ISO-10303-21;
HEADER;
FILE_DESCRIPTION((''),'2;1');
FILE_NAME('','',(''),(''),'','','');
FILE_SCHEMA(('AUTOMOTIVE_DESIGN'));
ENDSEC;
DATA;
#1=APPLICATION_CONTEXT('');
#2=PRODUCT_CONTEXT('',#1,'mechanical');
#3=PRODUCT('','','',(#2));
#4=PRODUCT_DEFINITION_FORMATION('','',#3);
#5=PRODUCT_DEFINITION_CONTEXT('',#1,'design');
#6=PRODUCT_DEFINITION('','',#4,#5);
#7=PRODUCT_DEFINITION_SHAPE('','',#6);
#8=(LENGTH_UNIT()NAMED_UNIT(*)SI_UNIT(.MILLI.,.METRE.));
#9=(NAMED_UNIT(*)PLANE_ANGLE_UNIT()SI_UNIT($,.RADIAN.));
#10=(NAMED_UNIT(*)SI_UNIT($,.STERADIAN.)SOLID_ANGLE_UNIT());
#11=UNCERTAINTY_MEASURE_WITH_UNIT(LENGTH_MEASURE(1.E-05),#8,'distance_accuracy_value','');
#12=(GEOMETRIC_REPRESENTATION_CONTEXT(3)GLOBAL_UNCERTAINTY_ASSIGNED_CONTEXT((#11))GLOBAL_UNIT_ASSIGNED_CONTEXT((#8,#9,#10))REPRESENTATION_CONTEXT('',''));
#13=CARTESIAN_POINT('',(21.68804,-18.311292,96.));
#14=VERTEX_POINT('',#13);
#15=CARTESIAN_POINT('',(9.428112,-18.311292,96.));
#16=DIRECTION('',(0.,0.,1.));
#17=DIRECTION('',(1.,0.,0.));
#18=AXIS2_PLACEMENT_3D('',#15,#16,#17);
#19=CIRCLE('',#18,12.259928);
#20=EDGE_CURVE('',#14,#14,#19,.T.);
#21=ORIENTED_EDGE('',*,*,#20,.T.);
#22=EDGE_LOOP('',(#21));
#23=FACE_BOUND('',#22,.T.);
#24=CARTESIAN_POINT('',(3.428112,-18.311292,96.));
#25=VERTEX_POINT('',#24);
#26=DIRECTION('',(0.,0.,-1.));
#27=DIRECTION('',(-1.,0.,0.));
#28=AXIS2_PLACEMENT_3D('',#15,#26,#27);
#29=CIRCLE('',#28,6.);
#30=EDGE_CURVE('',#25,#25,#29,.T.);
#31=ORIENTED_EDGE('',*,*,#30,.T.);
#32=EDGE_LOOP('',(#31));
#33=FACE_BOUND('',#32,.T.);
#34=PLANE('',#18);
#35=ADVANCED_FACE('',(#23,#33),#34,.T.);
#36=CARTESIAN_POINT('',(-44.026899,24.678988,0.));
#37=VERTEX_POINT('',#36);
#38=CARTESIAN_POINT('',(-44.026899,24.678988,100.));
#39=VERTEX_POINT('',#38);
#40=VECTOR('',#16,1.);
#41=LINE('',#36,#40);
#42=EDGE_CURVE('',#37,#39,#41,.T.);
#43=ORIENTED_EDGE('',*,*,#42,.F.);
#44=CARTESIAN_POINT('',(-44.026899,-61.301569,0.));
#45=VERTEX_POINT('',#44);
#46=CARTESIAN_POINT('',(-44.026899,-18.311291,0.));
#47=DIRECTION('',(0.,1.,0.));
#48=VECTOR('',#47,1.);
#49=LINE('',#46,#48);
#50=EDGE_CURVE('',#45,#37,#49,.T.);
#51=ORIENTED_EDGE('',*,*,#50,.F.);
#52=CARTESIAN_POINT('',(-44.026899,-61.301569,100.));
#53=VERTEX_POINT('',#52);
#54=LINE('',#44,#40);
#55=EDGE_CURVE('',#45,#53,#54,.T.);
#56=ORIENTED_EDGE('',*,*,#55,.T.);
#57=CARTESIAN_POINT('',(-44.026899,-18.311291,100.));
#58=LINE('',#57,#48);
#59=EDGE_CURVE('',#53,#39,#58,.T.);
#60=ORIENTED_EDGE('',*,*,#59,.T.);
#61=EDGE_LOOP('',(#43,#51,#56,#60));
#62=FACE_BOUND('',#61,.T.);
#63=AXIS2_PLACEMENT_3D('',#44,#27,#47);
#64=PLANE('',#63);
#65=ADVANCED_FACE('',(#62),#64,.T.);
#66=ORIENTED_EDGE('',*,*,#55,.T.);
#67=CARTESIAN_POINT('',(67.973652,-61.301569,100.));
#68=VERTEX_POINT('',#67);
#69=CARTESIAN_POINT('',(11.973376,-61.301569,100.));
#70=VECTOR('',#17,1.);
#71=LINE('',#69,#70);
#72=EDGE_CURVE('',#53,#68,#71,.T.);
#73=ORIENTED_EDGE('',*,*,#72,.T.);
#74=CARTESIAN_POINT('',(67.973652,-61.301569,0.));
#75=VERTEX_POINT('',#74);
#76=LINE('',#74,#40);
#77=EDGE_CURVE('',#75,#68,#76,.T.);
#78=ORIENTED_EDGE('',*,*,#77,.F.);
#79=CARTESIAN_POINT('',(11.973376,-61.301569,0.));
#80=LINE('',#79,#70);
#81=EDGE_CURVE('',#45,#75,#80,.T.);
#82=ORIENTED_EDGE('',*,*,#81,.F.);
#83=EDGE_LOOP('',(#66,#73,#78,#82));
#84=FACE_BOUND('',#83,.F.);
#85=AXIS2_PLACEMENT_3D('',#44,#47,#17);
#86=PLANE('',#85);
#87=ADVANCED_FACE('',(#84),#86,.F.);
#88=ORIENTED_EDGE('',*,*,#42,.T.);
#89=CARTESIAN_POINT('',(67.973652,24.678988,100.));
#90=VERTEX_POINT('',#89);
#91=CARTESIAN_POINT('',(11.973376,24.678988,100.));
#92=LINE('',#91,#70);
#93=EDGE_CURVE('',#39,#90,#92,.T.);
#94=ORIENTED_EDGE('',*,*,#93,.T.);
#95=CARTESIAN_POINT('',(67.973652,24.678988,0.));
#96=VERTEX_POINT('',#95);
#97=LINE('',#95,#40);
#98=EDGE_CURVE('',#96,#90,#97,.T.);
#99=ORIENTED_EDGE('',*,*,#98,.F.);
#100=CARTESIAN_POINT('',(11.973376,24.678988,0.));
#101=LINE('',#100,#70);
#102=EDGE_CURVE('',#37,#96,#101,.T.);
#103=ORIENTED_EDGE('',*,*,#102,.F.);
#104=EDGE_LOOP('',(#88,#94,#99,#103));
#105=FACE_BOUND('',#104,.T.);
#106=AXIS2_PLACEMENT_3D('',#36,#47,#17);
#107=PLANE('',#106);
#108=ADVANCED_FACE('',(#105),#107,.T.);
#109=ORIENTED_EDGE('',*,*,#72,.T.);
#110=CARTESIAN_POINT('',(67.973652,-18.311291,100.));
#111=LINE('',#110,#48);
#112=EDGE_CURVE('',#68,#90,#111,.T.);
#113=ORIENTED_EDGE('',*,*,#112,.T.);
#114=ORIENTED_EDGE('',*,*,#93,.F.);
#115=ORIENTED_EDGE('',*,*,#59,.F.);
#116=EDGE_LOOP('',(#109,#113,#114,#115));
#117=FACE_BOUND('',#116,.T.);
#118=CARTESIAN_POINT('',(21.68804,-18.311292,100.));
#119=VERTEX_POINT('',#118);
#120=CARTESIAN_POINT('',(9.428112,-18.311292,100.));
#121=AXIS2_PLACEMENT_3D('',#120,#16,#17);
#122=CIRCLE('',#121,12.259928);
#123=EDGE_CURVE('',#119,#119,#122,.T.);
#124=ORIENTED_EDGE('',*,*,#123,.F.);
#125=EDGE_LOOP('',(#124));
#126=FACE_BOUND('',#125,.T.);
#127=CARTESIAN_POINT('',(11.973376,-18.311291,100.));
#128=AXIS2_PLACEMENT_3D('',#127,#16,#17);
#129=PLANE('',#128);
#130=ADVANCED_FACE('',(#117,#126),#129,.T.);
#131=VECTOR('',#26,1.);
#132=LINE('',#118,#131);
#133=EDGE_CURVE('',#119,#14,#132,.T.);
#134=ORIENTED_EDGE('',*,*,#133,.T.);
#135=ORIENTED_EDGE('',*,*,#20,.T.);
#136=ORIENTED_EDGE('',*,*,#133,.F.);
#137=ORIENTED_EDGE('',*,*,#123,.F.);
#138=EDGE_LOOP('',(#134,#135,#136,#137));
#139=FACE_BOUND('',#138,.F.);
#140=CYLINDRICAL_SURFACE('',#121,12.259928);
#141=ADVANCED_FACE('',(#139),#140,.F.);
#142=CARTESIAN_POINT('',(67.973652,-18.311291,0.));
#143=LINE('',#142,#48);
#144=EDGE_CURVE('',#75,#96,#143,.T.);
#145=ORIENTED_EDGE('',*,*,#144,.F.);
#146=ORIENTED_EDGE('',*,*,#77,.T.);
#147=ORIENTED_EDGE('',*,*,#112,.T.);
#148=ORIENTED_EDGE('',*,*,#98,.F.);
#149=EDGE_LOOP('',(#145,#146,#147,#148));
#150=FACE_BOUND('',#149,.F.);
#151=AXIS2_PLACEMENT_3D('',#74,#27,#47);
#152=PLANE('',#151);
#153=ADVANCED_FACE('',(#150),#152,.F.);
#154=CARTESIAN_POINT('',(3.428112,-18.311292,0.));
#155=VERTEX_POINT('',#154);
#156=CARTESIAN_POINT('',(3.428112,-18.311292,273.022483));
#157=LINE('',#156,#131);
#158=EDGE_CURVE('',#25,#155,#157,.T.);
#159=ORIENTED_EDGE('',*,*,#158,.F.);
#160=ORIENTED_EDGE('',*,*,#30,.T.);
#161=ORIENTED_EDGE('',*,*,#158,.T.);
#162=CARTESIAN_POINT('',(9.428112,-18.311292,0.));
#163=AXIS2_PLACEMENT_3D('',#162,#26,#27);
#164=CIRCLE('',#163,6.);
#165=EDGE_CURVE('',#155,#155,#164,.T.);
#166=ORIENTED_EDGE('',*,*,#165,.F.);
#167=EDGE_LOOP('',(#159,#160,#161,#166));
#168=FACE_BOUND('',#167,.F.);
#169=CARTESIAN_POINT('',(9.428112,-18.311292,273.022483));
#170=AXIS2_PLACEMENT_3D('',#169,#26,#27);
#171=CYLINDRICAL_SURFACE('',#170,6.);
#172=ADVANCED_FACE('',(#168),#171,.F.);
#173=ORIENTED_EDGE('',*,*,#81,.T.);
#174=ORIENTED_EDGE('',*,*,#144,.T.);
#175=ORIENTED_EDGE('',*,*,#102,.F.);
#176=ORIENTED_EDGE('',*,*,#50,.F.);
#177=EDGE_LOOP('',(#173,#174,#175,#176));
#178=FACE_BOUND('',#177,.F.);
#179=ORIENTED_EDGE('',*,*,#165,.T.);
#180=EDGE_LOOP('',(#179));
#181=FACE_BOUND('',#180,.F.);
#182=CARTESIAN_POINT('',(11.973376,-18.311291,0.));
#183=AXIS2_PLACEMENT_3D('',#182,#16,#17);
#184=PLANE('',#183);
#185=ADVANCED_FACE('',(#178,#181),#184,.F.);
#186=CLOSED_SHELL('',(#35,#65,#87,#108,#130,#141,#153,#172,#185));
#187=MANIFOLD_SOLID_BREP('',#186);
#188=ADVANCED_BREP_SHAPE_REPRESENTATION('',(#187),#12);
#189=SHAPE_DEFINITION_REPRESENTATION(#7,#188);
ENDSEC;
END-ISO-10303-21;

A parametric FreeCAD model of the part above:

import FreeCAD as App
import Part
import Sketcher

V = App.Vector

doc = App.newDocument("Part")
params = doc.addObject("Spreadsheet::Sheet", "Params")
for row, (alias, value) in enumerate([
    ("pad1_length", "100 mm"),
    ("sketch2_diameter", "12 mm"),
    ("hole_diameter", "12 mm"),
    ("pocket1_length", "4 mm"),
], start=1):
    params.set(f"A{row}", alias)
    params.set(f"B{row}", "=" + value)
    params.setAlias(f"B{row}", alias)

body = doc.addObject("PartDesign::Body", "Body")

# Sketch on XY plane
sketch1 = body.newObject("Sketcher::SketchObject", "Sketch")
sketch1.AttachmentSupport = (doc.getObject("XY_Plane"), [""])
sketch1.MapMode = "FlatFace"
sketch1.addGeometry([
    Part.LineSegment(V(-44.026899, 24.678988, 0), V(-44.026899, -61.301569, 0)),
    Part.LineSegment(V(-44.026899, -61.301569, 0), V(67.973652, -61.301569, 0)),
    Part.LineSegment(V(67.973652, -61.301569, 0), V(67.973652, 24.678988, 0)),
    Part.LineSegment(V(67.973652, 24.678988, 0), V(-44.026899, 24.678988, 0)),
], False)
sketch1.addConstraint([
    Sketcher.Constraint("Coincident", 0, 2, 1, 1),
    Sketcher.Constraint("Coincident", 1, 2, 2, 1),
    Sketcher.Constraint("Coincident", 2, 2, 3, 1),
    Sketcher.Constraint("Coincident", 3, 2, 0, 1),
    Sketcher.Constraint("Vertical", 0),
    Sketcher.Constraint("Horizontal", 1),
    Sketcher.Constraint("Vertical", 2),
    Sketcher.Constraint("Horizontal", 3),
    Sketcher.Constraint("DistanceX", 1, 1, 1, 2, 112.000551),
    Sketcher.Constraint("DistanceX", 0, 2, -1, 1, 44.026899),
    Sketcher.Constraint("DistanceY", 0, 2, 0, 1, 85.980557),
    Sketcher.Constraint("DistanceY", 0, 2, -1, 1, 61.301569),
])
pad1 = body.newObject("PartDesign::Pad", "Pad")
pad1.Profile = sketch1
pad1.setExpression("Length", "Params.pad1_length")

# Sketch on XY plane
sketch2 = body.newObject("Sketcher::SketchObject", "Sketch001")
sketch2.AttachmentSupport = (doc.getObject("XY_Plane"), [""])
sketch2.MapMode = "FlatFace"
sketch2.AttachmentOffset = App.Placement(V(0, 0, 100), App.Rotation())
sketch2.addGeometry(Part.Circle(V(9.428112, -18.311292, 0), V(0, 0, 1), 6), False)
sketch2.addConstraint([
    Sketcher.Constraint("Diameter", 0, 12.0),
    Sketcher.Constraint("DistanceX", -1, 1, 0, 3, 9.428112),
    Sketcher.Constraint("DistanceY", 0, 3, -1, 1, 18.311292),
])
sketch2.setExpression("Constraints[0]", "Params.sketch2_diameter")
doc.recompute()
hole = body.newObject("PartDesign::Hole", "Hole")
hole.Profile = sketch2
hole.ThreadType = "None"
hole.setExpression("Diameter", "Params.hole_diameter")
hole.DepthType = "ThroughAll"

# Sketch on XY plane
sketch3 = body.newObject("Sketcher::SketchObject", "Sketch002")
sketch3.AttachmentSupport = (doc.getObject("XY_Plane"), [""])
sketch3.MapMode = "FlatFace"
sketch3.AttachmentOffset = App.Placement(V(0, 0, 100), App.Rotation())
sketch3.addGeometry(Part.Circle(V(9.428112, -18.311292, 0), V(0, 0, 1), 12.259928), False)
sketch3.addConstraint([
    Sketcher.Constraint("Diameter", 0, 24.519856),
    Sketcher.Constraint("DistanceX", -1, 1, 0, 3, 9.428112),
    Sketcher.Constraint("DistanceY", 0, 3, -1, 1, 18.311292),
])
pocket1 = body.newObject("PartDesign::Pocket", "Pocket")
pocket1.Profile = sketch3
pocket1.setExpression("Length", "Params.pocket1_length")

doc.recompute()
